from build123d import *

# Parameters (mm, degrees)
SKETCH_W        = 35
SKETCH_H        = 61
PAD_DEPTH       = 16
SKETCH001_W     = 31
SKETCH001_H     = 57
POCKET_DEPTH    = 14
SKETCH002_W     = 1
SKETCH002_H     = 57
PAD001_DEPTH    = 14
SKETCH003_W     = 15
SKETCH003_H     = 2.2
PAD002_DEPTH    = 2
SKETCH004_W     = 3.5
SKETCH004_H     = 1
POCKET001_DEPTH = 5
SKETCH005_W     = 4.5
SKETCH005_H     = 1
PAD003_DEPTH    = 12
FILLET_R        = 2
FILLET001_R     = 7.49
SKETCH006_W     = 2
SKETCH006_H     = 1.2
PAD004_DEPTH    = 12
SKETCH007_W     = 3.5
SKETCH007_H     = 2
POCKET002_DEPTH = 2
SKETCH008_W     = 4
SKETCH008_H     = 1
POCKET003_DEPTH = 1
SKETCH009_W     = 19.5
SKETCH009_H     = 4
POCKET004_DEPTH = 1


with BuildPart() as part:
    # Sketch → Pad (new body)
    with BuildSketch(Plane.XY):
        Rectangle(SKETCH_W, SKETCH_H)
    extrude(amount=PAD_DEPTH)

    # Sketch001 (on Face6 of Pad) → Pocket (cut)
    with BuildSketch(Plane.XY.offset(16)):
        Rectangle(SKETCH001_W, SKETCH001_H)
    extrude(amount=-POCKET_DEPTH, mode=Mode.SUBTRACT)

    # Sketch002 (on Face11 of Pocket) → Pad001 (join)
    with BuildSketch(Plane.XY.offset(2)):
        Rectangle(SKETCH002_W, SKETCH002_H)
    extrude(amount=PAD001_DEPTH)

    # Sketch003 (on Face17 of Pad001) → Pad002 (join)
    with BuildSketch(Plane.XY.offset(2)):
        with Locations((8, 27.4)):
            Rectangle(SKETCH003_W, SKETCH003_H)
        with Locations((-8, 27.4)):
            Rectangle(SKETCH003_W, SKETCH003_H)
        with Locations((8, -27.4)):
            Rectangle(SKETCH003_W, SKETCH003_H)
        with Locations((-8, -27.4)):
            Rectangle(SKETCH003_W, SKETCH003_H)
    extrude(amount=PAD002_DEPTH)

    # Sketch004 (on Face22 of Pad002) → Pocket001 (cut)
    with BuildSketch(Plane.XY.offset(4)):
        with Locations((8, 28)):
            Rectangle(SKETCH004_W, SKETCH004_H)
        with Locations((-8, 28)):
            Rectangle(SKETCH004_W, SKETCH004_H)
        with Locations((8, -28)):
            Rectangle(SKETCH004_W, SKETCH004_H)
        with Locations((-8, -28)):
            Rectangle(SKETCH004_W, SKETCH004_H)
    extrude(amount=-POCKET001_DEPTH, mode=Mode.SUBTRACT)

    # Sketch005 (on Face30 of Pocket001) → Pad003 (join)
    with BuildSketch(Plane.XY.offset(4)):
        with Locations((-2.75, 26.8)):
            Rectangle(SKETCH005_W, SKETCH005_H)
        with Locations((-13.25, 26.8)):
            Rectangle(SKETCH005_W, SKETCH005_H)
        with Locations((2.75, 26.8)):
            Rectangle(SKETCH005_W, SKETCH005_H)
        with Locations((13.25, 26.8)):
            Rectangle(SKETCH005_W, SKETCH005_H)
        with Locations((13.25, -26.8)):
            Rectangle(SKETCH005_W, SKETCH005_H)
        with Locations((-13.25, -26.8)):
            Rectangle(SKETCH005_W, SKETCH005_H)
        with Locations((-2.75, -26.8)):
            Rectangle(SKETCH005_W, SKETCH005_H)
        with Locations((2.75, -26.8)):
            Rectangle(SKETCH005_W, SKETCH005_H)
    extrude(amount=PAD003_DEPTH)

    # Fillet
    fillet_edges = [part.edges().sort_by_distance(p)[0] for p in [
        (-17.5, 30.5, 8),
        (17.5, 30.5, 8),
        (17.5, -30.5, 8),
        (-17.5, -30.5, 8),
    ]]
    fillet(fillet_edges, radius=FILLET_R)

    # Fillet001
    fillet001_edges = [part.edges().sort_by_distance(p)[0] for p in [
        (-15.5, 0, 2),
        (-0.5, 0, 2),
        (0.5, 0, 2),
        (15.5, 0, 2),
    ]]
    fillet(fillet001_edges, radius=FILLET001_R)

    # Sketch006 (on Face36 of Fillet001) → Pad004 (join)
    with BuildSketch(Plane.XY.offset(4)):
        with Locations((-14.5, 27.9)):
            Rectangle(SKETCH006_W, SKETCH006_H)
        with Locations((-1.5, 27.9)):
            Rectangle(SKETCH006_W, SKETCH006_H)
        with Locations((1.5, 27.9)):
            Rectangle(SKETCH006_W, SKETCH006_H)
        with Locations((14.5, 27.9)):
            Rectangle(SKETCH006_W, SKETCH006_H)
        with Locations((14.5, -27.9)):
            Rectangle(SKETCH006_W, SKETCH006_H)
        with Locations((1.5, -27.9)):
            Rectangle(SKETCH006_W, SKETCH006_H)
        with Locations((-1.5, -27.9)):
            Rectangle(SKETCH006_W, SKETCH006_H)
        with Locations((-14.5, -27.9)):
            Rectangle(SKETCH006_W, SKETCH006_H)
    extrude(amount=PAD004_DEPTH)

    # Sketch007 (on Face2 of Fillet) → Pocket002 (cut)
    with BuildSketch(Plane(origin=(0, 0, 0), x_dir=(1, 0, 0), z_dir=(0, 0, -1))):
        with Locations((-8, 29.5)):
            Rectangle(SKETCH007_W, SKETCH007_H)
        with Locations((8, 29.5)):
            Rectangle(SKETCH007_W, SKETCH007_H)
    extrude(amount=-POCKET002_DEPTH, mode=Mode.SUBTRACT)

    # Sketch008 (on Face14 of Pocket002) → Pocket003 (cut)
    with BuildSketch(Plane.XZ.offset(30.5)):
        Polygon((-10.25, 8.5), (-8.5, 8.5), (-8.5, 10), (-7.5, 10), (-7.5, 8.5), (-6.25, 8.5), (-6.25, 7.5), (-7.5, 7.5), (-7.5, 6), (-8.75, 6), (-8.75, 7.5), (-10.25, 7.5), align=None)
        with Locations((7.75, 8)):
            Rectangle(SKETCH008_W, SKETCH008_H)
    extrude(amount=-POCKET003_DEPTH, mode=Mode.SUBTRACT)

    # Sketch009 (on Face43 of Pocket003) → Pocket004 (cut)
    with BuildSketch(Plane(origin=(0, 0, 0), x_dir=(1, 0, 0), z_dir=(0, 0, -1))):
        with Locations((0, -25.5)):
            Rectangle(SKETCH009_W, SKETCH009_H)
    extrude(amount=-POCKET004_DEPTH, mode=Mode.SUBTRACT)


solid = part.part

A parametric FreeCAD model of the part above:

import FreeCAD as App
import Part
import Sketcher
Q = App.Units.Quantity


def edges_at(feature, points):
    """Names of the edges that pass closest to the given points."""
    edges = feature.Shape.Edges
    near = lambda p: min(range(len(edges)), key=lambda i: edges[i].distToShape(Part.Vertex(*p))[0])
    return sorted({f"Edge{near(p) + 1}" for p in points})

doc = App.newDocument("Part")
body = doc.addObject("PartDesign::Body", "Body")

# Sketch on XY plane
sketch1 = body.newObject("Sketcher::SketchObject", "Sketch")
sketch1.AttachmentSupport = (doc.getObject("XY_Plane"), [""])
sketch1.MapMode = "FlatFace"
sketch1.addGeometry(Part.LineSegment(App.Vector(-18, 30, 0), App.Vector(-18, -30, 0)), False)
sketch1.addGeometry(Part.LineSegment(App.Vector(-18, -30, 0), App.Vector(18, -30, 0)), False)
sketch1.addGeometry(Part.LineSegment(App.Vector(18, -30, 0), App.Vector(18, 30, 0)), False)
sketch1.addGeometry(Part.LineSegment(App.Vector(18, 30, 0), App.Vector(-18, 30, 0)), False)
sketch1.addConstraint(Sketcher.Constraint("Coincident", 0, 2, 1, 1))
sketch1.addConstraint(Sketcher.Constraint("Coincident", 1, 2, 2, 1))
sketch1.addConstraint(Sketcher.Constraint("Coincident", 2, 2, 3, 1))
sketch1.addConstraint(Sketcher.Constraint("Coincident", 3, 2, 0, 1))
sketch1.addConstraint(Sketcher.Constraint("Vertical", 0))
sketch1.addConstraint(Sketcher.Constraint("Horizontal", 1))
sketch1.addConstraint(Sketcher.Constraint("Vertical", 2))
sketch1.addConstraint(Sketcher.Constraint("Horizontal", 3))
sketch1.addConstraint(Sketcher.Constraint("Symmetric", 0, 2, 2, 2, -1, 1))
sketch1.addConstraint(Sketcher.Constraint("DistanceX", 1, 1, 1, 2, Q("35 mm")))
sketch1.addConstraint(Sketcher.Constraint("DistanceY", 0, 2, 0, 1, Q("61 mm")))
pad1 = body.newObject("PartDesign::Pad", "Pad")
pad1.Profile = sketch1
pad1.Length = 16

# Sketch on XY plane
sketch2 = body.newObject("Sketcher::SketchObject", "Sketch001")
sketch2.AttachmentSupport = (doc.getObject("XY_Plane"), [""])
sketch2.MapMode = "FlatFace"
sketch2.AttachmentOffset = App.Placement(App.Vector(0, 0, 16), App.Rotation())
sketch2.addGeometry(Part.LineSegment(App.Vector(-16, 28, 0), App.Vector(-16, -28, 0)), False)
sketch2.addGeometry(Part.LineSegment(App.Vector(-16, -28, 0), App.Vector(16, -28, 0)), False)
sketch2.addGeometry(Part.LineSegment(App.Vector(16, -28, 0), App.Vector(16, 28, 0)), False)
sketch2.addGeometry(Part.LineSegment(App.Vector(16, 28, 0), App.Vector(-16, 28, 0)), False)
sketch2.addConstraint(Sketcher.Constraint("Coincident", 0, 2, 1, 1))
sketch2.addConstraint(Sketcher.Constraint("Coincident", 1, 2, 2, 1))
sketch2.addConstraint(Sketcher.Constraint("Coincident", 2, 2, 3, 1))
sketch2.addConstraint(Sketcher.Constraint("Coincident", 3, 2, 0, 1))
sketch2.addConstraint(Sketcher.Constraint("Vertical", 0))
sketch2.addConstraint(Sketcher.Constraint("Horizontal", 1))
sketch2.addConstraint(Sketcher.Constraint("Vertical", 2))
sketch2.addConstraint(Sketcher.Constraint("Horizontal", 3))
sketch2.addConstraint(Sketcher.Constraint("Symmetric", 0, 2, 2, 2, -1, 1))
sketch2.addConstraint(Sketcher.Constraint("DistanceX", 1, 1, 1, 2, Q("31 mm")))
sketch2.addConstraint(Sketcher.Constraint("DistanceY", 0, 2, 0, 1, Q("57 mm")))
pocket1 = body.newObject("PartDesign::Pocket", "Pocket")
pocket1.Profile = sketch2
pocket1.Length = 14

# Sketch on XY plane
sketch3 = body.newObject("Sketcher::SketchObject", "Sketch002")
sketch3.AttachmentSupport = (doc.getObject("XY_Plane"), [""])
sketch3.MapMode = "FlatFace"
sketch3.AttachmentOffset = App.Placement(App.Vector(0, 0, 2), App.Rotation())
sketch3.addGeometry(Part.LineSegment(App.Vector(-0.5, 28.5, 0), App.Vector(-0.5, -28.5, 0)), False)
sketch3.addGeometry(Part.LineSegment(App.Vector(-0.5, -28.5, 0), App.Vector(0.5, -28.5, 0)), False)
sketch3.addGeometry(Part.LineSegment(App.Vector(0.5, -28.5, 0), App.Vector(0.5, 28.5, 0)), False)
sketch3.addGeometry(Part.LineSegment(App.Vector(0.5, 28.5, 0), App.Vector(-0.5, 28.5, 0)), False)
sketch3.addConstraint(Sketcher.Constraint("Coincident", 0, 2, 1, 1))
sketch3.addConstraint(Sketcher.Constraint("Coincident", 1, 2, 2, 1))
sketch3.addConstraint(Sketcher.Constraint("Coincident", 2, 2, 3, 1))
sketch3.addConstraint(Sketcher.Constraint("Coincident", 3, 2, 0, 1))
sketch3.addConstraint(Sketcher.Constraint("Vertical", 0))
sketch3.addConstraint(Sketcher.Constraint("Horizontal", 1))
sketch3.addConstraint(Sketcher.Constraint("Vertical", 2))
sketch3.addConstraint(Sketcher.Constraint("Horizontal", 3))
sketch3.addConstraint(Sketcher.Constraint("Symmetric", 0, 2, 2, 2, -1, 1))
sketch3.addConstraint(Sketcher.Constraint("DistanceX", 1, 1, 1, 2, Q("1 mm")))
sketch3.addConstraint(Sketcher.Constraint("DistanceY", 0, 2, 0, 1, Q("57 mm")))
pad2 = body.newObject("PartDesign::Pad", "Pad001")
pad2.Profile = sketch3
pad2.Length = 14

# Sketch on XY plane
sketch4 = body.newObject("Sketcher::SketchObject", "Sketch003")
sketch4.AttachmentSupport = (doc.getObject("XY_Plane"), [""])
sketch4.MapMode = "FlatFace"
sketch4.AttachmentOffset = App.Placement(App.Vector(0, 0, 2), App.Rotation())
sketch4.addGeometry(Part.LineSegment(App.Vector(0.5, 28.5, 0), App.Vector(0.5, 26.3, 0)), False)
sketch4.addGeometry(Part.LineSegment(App.Vector(0.5, 26.3, 0), App.Vector(15.5, 26.3, 0)), False)
sketch4.addGeometry(Part.LineSegment(App.Vector(15.5, 26.3, 0), App.Vector(15.5, 28.5, 0)), False)
sketch4.addGeometry(Part.LineSegment(App.Vector(15.5, 28.5, 0), App.Vector(0.5, 28.5, 0)), False)
sketch4.addGeometry(Part.LineSegment(App.Vector(-15.5, 28.5, 0), App.Vector(-15.5, 26.3, 0)), False)
sketch4.addGeometry(Part.LineSegment(App.Vector(-15.5, 26.3, 0), App.Vector(-0.5, 26.3, 0)), False)
sketch4.addGeometry(Part.LineSegment(App.Vector(-0.5, 26.3, 0), App.Vector(-0.5, 28.5, 0)), False)
sketch4.addGeometry(Part.LineSegment(App.Vector(-0.5, 28.5, 0), App.Vector(-15.5, 28.5, 0)), False)
sketch4.addGeometry(Part.LineSegment(App.Vector(0.5, -26.3, 0), App.Vector(0.5, -28.5, 0)), False)
sketch4.addGeometry(Part.LineSegment(App.Vector(0.5, -28.5, 0), App.Vector(15.5, -28.5, 0)), False)
sketch4.addGeometry(Part.LineSegment(App.Vector(15.5, -28.5, 0), App.Vector(15.5, -26.3, 0)), False)
sketch4.addGeometry(Part.LineSegment(App.Vector(15.5, -26.3, 0), App.Vector(0.5, -26.3, 0)), False)
sketch4.addGeometry(Part.LineSegment(App.Vector(-15.5, -26.3, 0), App.Vector(-15.5, -28.5, 0)), False)
sketch4.addGeometry(Part.LineSegment(App.Vector(-15.5, -28.5, 0), App.Vector(-0.5, -28.5, 0)), False)
sketch4.addGeometry(Part.LineSegment(App.Vector(-0.5, -28.5, 0), App.Vector(-0.5, -26.3, 0)), False)
sketch4.addGeometry(Part.LineSegment(App.Vector(-0.5, -26.3, 0), App.Vector(-15.5, -26.3, 0)), False)
sketch4.addConstraint(Sketcher.Constraint("Coincident", 0, 2, 1, 1))
sketch4.addConstraint(Sketcher.Constraint("Coincident", 1, 2, 2, 1))
sketch4.addConstraint(Sketcher.Constraint("Coincident", 2, 2, 3, 1))
sketch4.addConstraint(Sketcher.Constraint("Coincident", 3, 2, 0, 1))
sketch4.addConstraint(Sketcher.Constraint("Coincident", 4, 2, 5, 1))
sketch4.addConstraint(Sketcher.Constraint("Coincident", 5, 2, 6, 1))
sketch4.addConstraint(Sketcher.Constraint("Coincident", 6, 2, 7, 1))
sketch4.addConstraint(Sketcher.Constraint("Coincident", 7, 2, 4, 1))
sketch4.addConstraint(Sketcher.Constraint("Coincident", 8, 2, 9, 1))
sketch4.addConstraint(Sketcher.Constraint("Coincident", 9, 2, 10, 1))
sketch4.addConstraint(Sketcher.Constraint("Coincident", 10, 2, 11, 1))
sketch4.addConstraint(Sketcher.Constraint("Coincident", 11, 2, 8, 1))
sketch4.addConstraint(Sketcher.Constraint("Coincident", 12, 2, 13, 1))
sketch4.addConstraint(Sketcher.Constraint("Coincident", 13, 2, 14, 1))
sketch4.addConstraint(Sketcher.Constraint("Coincident", 14, 2, 15, 1))
sketch4.addConstraint(Sketcher.Constraint("Coincident", 15, 2, 12, 1))
sketch4.addConstraint(Sketcher.Constraint("Vertical", 0))
sketch4.addConstraint(Sketcher.Constraint("Horizontal", 1))
sketch4.addConstraint(Sketcher.Constraint("Vertical", 2))
sketch4.addConstraint(Sketcher.Constraint("Horizontal", 3))
sketch4.addConstraint(Sketcher.Constraint("Vertical", 4))
sketch4.addConstraint(Sketcher.Constraint("Horizontal", 5))
sketch4.addConstraint(Sketcher.Constraint("Vertical", 6))
sketch4.addConstraint(Sketcher.Constraint("Horizontal", 7))
sketch4.addConstraint(Sketcher.Constraint("Vertical", 8))
sketch4.addConstraint(Sketcher.Constraint("Horizontal", 9))
sketch4.addConstraint(Sketcher.Constraint("Vertical", 10))
sketch4.addConstraint(Sketcher.Constraint("Horizontal", 11))
sketch4.addConstraint(Sketcher.Constraint("Vertical", 12))
sketch4.addConstraint(Sketcher.Constraint("Horizontal", 13))
sketch4.addConstraint(Sketcher.Constraint("Vertical", 14))
sketch4.addConstraint(Sketcher.Constraint("Horizontal", 15))
sketch4.addConstraint(Sketcher.Constraint("Symmetric", 6, 2, 8, 2, -1, 1))
sketch4.addConstraint(Sketcher.Constraint("Symmetric", 4, 2, 10, 2, -1, 1))
sketch4.addConstraint(Sketcher.Constraint("Symmetric", 2, 2, 12, 2, -1, 1))
sketch4.addConstraint(Sketcher.Constraint("Symmetric", 0, 2, 14, 2, -1, 1))
sketch4.addConstraint(Sketcher.Constraint("Symmetric", 1, 2, 4, 2, -2))
sketch4.addConstraint(Sketcher.Constraint("Symmetric", 3, 2, 6, 2, -2))
sketch4.addConstraint(Sketcher.Constraint("DistanceX", 1, 1, 1, 2, Q("15 mm")))
sketch4.addConstraint(Sketcher.Constraint("DistanceY", 0, 2, 0, 1, Q("2.2 mm")))
sketch4.addConstraint(Sketcher.Constraint("DistanceX", 4, 2, 0, 2, Q("16 mm")))
sketch4.addConstraint(Sketcher.Constraint("DistanceY", 8, 2, 3, 2, Q("57 mm")))
pad3 = body.newObject("PartDesign::Pad", "Pad002")
pad3.Profile = sketch4
pad3.Length = 2

# Sketch on XY plane
sketch5 = body.newObject("Sketcher::SketchObject", "Sketch004")
sketch5.AttachmentSupport = (doc.getObject("XY_Plane"), [""])
sketch5.MapMode = "FlatFace"
sketch5.AttachmentOffset = App.Placement(App.Vector(0, 0, 4), App.Rotation())
sketch5.addGeometry(Part.LineSegment(App.Vector(6.2, 28.5, 0), App.Vector(6.2, 27.5, 0)), False)
sketch5.addGeometry(Part.LineSegment(App.Vector(6.2, 27.5, 0), App.Vector(9.8, 27.5, 0)), False)
sketch5.addGeometry(Part.LineSegment(App.Vector(9.8, 27.5, 0), App.Vector(9.8, 28.5, 0)), False)
sketch5.addGeometry(Part.LineSegment(App.Vector(9.8, 28.5, 0), App.Vector(6.2, 28.5, 0)), False)
sketch5.addGeometry(Part.LineSegment(App.Vector(-9.8, 28.5, 0), App.Vector(-9.8, 27.5, 0)), False)
sketch5.addGeometry(Part.LineSegment(App.Vector(-9.8, 27.5, 0), App.Vector(-6.2, 27.5, 0)), False)
sketch5.addGeometry(Part.LineSegment(App.Vector(-6.2, 27.5, 0), App.Vector(-6.2, 28.5, 0)), False)
sketch5.addGeometry(Part.LineSegment(App.Vector(-6.2, 28.5, 0), App.Vector(-9.8, 28.5, 0)), False)
sketch5.addGeometry(Part.LineSegment(App.Vector(6.2, -27.5, 0), App.Vector(6.2, -28.5, 0)), False)
sketch5.addGeometry(Part.LineSegment(App.Vector(6.2, -28.5, 0), App.Vector(9.8, -28.5, 0)), False)
sketch5.addGeometry(Part.LineSegment(App.Vector(9.8, -28.5, 0), App.Vector(9.8, -27.5, 0)), False)
sketch5.addGeometry(Part.LineSegment(App.Vector(9.8, -27.5, 0), App.Vector(6.2, -27.5, 0)), False)
sketch5.addGeometry(Part.LineSegment(App.Vector(-9.8, -27.5, 0), App.Vector(-9.8, -28.5, 0)), False)
sketch5.addGeometry(Part.LineSegment(App.Vector(-9.8, -28.5, 0), App.Vector(-6.2, -28.5, 0)), False)
sketch5.addGeometry(Part.LineSegment(App.Vector(-6.2, -28.5, 0), App.Vector(-6.2, -27.5, 0)), False)
sketch5.addGeometry(Part.LineSegment(App.Vector(-6.2, -27.5, 0), App.Vector(-9.8, -27.5, 0)), False)
sketch5.addConstraint(Sketcher.Constraint("Coincident", 0, 2, 1, 1))
sketch5.addConstraint(Sketcher.Constraint("Coincident", 1, 2, 2, 1))
sketch5.addConstraint(Sketcher.Constraint("Coincident", 2, 2, 3, 1))
sketch5.addConstraint(Sketcher.Constraint("Coincident", 3, 2, 0, 1))
sketch5.addConstraint(Sketcher.Constraint("Coincident", 4, 2, 5, 1))
sketch5.addConstraint(Sketcher.Constraint("Coincident", 5, 2, 6, 1))
sketch5.addConstraint(Sketcher.Constraint("Coincident", 6, 2, 7, 1))
sketch5.addConstraint(Sketcher.Constraint("Coincident", 7, 2, 4, 1))
sketch5.addConstraint(Sketcher.Constraint("Coincident", 8, 2, 9, 1))
sketch5.addConstraint(Sketcher.Constraint("Coincident", 9, 2, 10, 1))
sketch5.addConstraint(Sketcher.Constraint("Coincident", 10, 2, 11, 1))
sketch5.addConstraint(Sketcher.Constraint("Coincident", 11, 2, 8, 1))
sketch5.addConstraint(Sketcher.Constraint("Coincident", 12, 2, 13, 1))
sketch5.addConstraint(Sketcher.Constraint("Coincident", 13, 2, 14, 1))
sketch5.addConstraint(Sketcher.Constraint("Coincident", 14, 2, 15, 1))
sketch5.addConstraint(Sketcher.Constraint("Coincident", 15, 2, 12, 1))
sketch5.addConstraint(Sketcher.Constraint("Vertical", 0))
sketch5.addConstraint(Sketcher.Constraint("Horizontal", 1))
sketch5.addConstraint(Sketcher.Constraint("Vertical", 2))
sketch5.addConstraint(Sketcher.Constraint("Horizontal", 3))
sketch5.addConstraint(Sketcher.Constraint("Vertical", 4))
sketch5.addConstraint(Sketcher.Constraint("Horizontal", 5))
sketch5.addConstraint(Sketcher.Constraint("Vertical", 6))
sketch5.addConstraint(Sketcher.Constraint("Horizontal", 7))
sketch5.addConstraint(Sketcher.Constraint("Vertical", 8))
sketch5.addConstraint(Sketcher.Constraint("Horizontal", 9))
sketch5.addConstraint(Sketcher.Constraint("Vertical", 10))
sketch5.addConstraint(Sketcher.Constraint("Horizontal", 11))
sketch5.addConstraint(Sketcher.Constraint("Vertical", 12))
sketch5.addConstraint(Sketcher.Constraint("Horizontal", 13))
sketch5.addConstraint(Sketcher.Constraint("Vertical", 14))
sketch5.addConstraint(Sketcher.Constraint("Horizontal", 15))
sketch5.addConstraint(Sketcher.Constraint("Symmetric", 6, 2, 8, 2, -1, 1))
sketch5.addConstraint(Sketcher.Constraint("Symmetric", 4, 2, 10, 2, -1, 1))
sketch5.addConstraint(Sketcher.Constraint("Symmetric", 2, 2, 12, 2, -1, 1))
sketch5.addConstraint(Sketcher.Constraint("Symmetric", 0, 2, 14, 2, -1, 1))
sketch5.addConstraint(Sketcher.Constraint("Symmetric", 1, 2, 4, 2, -2))
sketch5.addConstraint(Sketcher.Constraint("Symmetric", 3, 2, 6, 2, -2))
sketch5.addConstraint(Sketcher.Constraint("DistanceY", 0, 2, 0, 1, Q("1 mm")))
sketch5.addConstraint(Sketcher.Constraint("DistanceX", 1, 1, 1, 2, Q("3.5 mm")))
sketch5.addConstraint(Sketcher.Constraint("DistanceX", 4, 2, 0, 2, Q("16 mm")))
sketch5.addConstraint(Sketcher.Constraint("DistanceY", 8, 2, 0, 2, Q("56 mm")))
pocket2 = body.newObject("PartDesign::Pocket", "Pocket001")
pocket2.Profile = sketch5
pocket2.Length = 5

# Sketch on XY plane
sketch6 = body.newObject("Sketcher::SketchObject", "Sketch005")
sketch6.AttachmentSupport = (doc.getObject("XY_Plane"), [""])
sketch6.MapMode = "FlatFace"
sketch6.AttachmentOffset = App.Placement(App.Vector(0, 0, 4), App.Rotation())
sketch6.addGeometry(Part.LineSegment(App.Vector(-5, 27.3, 0), App.Vector(-5, 26.3, 0)), False)
sketch6.addGeometry(Part.LineSegment(App.Vector(-5, 26.3, 0), App.Vector(-0.5, 26.3, 0)), False)
sketch6.addGeometry(Part.LineSegment(App.Vector(-0.5, 26.3, 0), App.Vector(-0.5, 27.3, 0)), False)
sketch6.addGeometry(Part.LineSegment(App.Vector(-0.5, 27.3, 0), App.Vector(-5, 27.3, 0)), False)
sketch6.addGeometry(Part.LineSegment(App.Vector(-15.5, 27.3, 0), App.Vector(-15.5, 26.3, 0)), False)
sketch6.addGeometry(Part.LineSegment(App.Vector(-15.5, 26.3, 0), App.Vector(-11, 26.3, 0)), False)
sketch6.addGeometry(Part.LineSegment(App.Vector(-11, 26.3, 0), App.Vector(-11, 27.3, 0)), False)
sketch6.addGeometry(Part.LineSegment(App.Vector(-11, 27.3, 0), App.Vector(-15.5, 27.3, 0)), False)
sketch6.addGeometry(Part.LineSegment(App.Vector(0.5, 27.3, 0), App.Vector(0.5, 26.3, 0)), False)
sketch6.addGeometry(Part.LineSegment(App.Vector(0.5, 26.3, 0), App.Vector(5, 26.3, 0)), False)
sketch6.addGeometry(Part.LineSegment(App.Vector(5, 26.3, 0), App.Vector(5, 27.3, 0)), False)
sketch6.addGeometry(Part.LineSegment(App.Vector(5, 27.3, 0), App.Vector(0.5, 27.3, 0)), False)
sketch6.addGeometry(Part.LineSegment(App.Vector(11, 27.3, 0), App.Vector(11, 26.3, 0)), False)
sketch6.addGeometry(Part.LineSegment(App.Vector(11, 26.3, 0), App.Vector(15.5, 26.3, 0)), False)
sketch6.addGeometry(Part.LineSegment(App.Vector(15.5, 26.3, 0), App.Vector(15.5, 27.3, 0)), False)
sketch6.addGeometry(Part.LineSegment(App.Vector(15.5, 27.3, 0), App.Vector(11, 27.3, 0)), False)
sketch6.addGeometry(Part.LineSegment(App.Vector(11, -26.3, 0), App.Vector(11, -27.3, 0)), False)
sketch6.addGeometry(Part.LineSegment(App.Vector(11, -27.3, 0), App.Vector(15.5, -27.3, 0)), False)
sketch6.addGeometry(Part.LineSegment(App.Vector(15.5, -27.3, 0), App.Vector(15.5, -26.3, 0)), False)
sketch6.addGeometry(Part.LineSegment(App.Vector(15.5, -26.3, 0), App.Vector(11, -26.3, 0)), False)
sketch6.addGeometry(Part.LineSegment(App.Vector(-15.5, -26.3, 0), App.Vector(-15.5, -27.3, 0)), False)
sketch6.addGeometry(Part.LineSegment(App.Vector(-15.5, -27.3, 0), App.Vector(-11, -27.3, 0)), False)
sketch6.addGeometry(Part.LineSegment(App.Vector(-11, -27.3, 0), App.Vector(-11, -26.3, 0)), False)
sketch6.addGeometry(Part.LineSegment(App.Vector(-11, -26.3, 0), App.Vector(-15.5, -26.3, 0)), False)
sketch6.addGeometry(Part.LineSegment(App.Vector(-5, -26.3, 0), App.Vector(-5, -27.3, 0)), False)
sketch6.addGeometry(Part.LineSegment(App.Vector(-5, -27.3, 0), App.Vector(-0.5, -27.3, 0)), False)
sketch6.addGeometry(Part.LineSegment(App.Vector(-0.5, -27.3, 0), App.Vector(-0.5, -26.3, 0)), False)
sketch6.addGeometry(Part.LineSegment(App.Vector(-0.5, -26.3, 0), App.Vector(-5, -26.3, 0)), False)
sketch6.addGeometry(Part.LineSegment(App.Vector(0.5, -26.3, 0), App.Vector(0.5, -27.3, 0)), False)
sketch6.addGeometry(Part.LineSegment(App.Vector(0.5, -27.3, 0), App.Vector(5, -27.3, 0)), False)
sketch6.addGeometry(Part.LineSegment(App.Vector(5, -27.3, 0), App.Vector(5, -26.3, 0)), False)
sketch6.addGeometry(Part.LineSegment(App.Vector(5, -26.3, 0), App.Vector(0.5, -26.3, 0)), False)
sketch6.addConstraint(Sketcher.Constraint("Coincident", 0, 2, 1, 1))
sketch6.addConstraint(Sketcher.Constraint("Coincident", 1, 2, 2, 1))
sketch6.addConstraint(Sketcher.Constraint("Coincident", 2, 2, 3, 1))
sketch6.addConstraint(Sketcher.Constraint("Coincident", 3, 2, 0, 1))
sketch6.addConstraint(Sketcher.Constraint("Coincident", 4, 2, 5, 1))
sketch6.addConstraint(Sketcher.Constraint("Coincident", 5, 2, 6, 1))
sketch6.addConstraint(Sketcher.Constraint("Coincident", 6, 2, 7, 1))
sketch6.addConstraint(Sketcher.Constraint("Coincident", 7, 2, 4, 1))
sketch6.addConstraint(Sketcher.Constraint("Coincident", 8, 2, 9, 1))
sketch6.addConstraint(Sketcher.Constraint("Coincident", 9, 2, 10, 1))
sketch6.addConstraint(Sketcher.Constraint("Coincident", 10, 2, 11, 1))
sketch6.addConstraint(Sketcher.Constraint("Coincident", 11, 2, 8, 1))
sketch6.addConstraint(Sketcher.Constraint("Coincident", 12, 2, 13, 1))
sketch6.addConstraint(Sketcher.Constraint("Coincident", 13, 2, 14, 1))
sketch6.addConstraint(Sketcher.Constraint("Coincident", 14, 2, 15, 1))
sketch6.addConstraint(Sketcher.Constraint("Coincident", 15, 2, 12, 1))
sketch6.addConstraint(Sketcher.Constraint("Coincident", 16, 2, 17, 1))
sketch6.addConstraint(Sketcher.Constraint("Coincident", 17, 2, 18, 1))
sketch6.addConstraint(Sketcher.Constraint("Coincident", 18, 2, 19, 1))
sketch6.addConstraint(Sketcher.Constraint("Coincident", 19, 2, 16, 1))
sketch6.addConstraint(Sketcher.Constraint("Coincident", 20, 2, 21, 1))
sketch6.addConstraint(Sketcher.Constraint("Coincident", 21, 2, 22, 1))
sketch6.addConstraint(Sketcher.Constraint("Coincident", 22, 2, 23, 1))
sketch6.addConstraint(Sketcher.Constraint("Coincident", 23, 2, 20, 1))
sketch6.addConstraint(Sketcher.Constraint("Coincident", 24, 2, 25, 1))
sketch6.addConstraint(Sketcher.Constraint("Coincident", 25, 2, 26, 1))
sketch6.addConstraint(Sketcher.Constraint("Coincident", 26, 2, 27, 1))
sketch6.addConstraint(Sketcher.Constraint("Coincident", 27, 2, 24, 1))
sketch6.addConstraint(Sketcher.Constraint("Coincident", 28, 2, 29, 1))
sketch6.addConstraint(Sketcher.Constraint("Coincident", 29, 2, 30, 1))
sketch6.addConstraint(Sketcher.Constraint("Coincident", 30, 2, 31, 1))
sketch6.addConstraint(Sketcher.Constraint("Coincident", 31, 2, 28, 1))
sketch6.addConstraint(Sketcher.Constraint("Vertical", 0))
sketch6.addConstraint(Sketcher.Constraint("Horizontal", 1))
sketch6.addConstraint(Sketcher.Constraint("Vertical", 2))
sketch6.addConstraint(Sketcher.Constraint("Horizontal", 3))
sketch6.addConstraint(Sketcher.Constraint("Vertical", 4))
sketch6.addConstraint(Sketcher.Constraint("Horizontal", 5))
sketch6.addConstraint(Sketcher.Constraint("Vertical", 6))
sketch6.addConstraint(Sketcher.Constraint("Horizontal", 7))
sketch6.addConstraint(Sketcher.Constraint("Vertical", 8))
sketch6.addConstraint(Sketcher.Constraint("Horizontal", 9))
sketch6.addConstraint(Sketcher.Constraint("Vertical", 10))
sketch6.addConstraint(Sketcher.Constraint("Horizontal", 11))
sketch6.addConstraint(Sketcher.Constraint("Vertical", 12))
sketch6.addConstraint(Sketcher.Constraint("Horizontal", 13))
sketch6.addConstraint(Sketcher.Constraint("Vertical", 14))
sketch6.addConstraint(Sketcher.Constraint("Horizontal", 15))
sketch6.addConstraint(Sketcher.Constraint("Vertical", 16))
sketch6.addConstraint(Sketcher.Constraint("Horizontal", 17))
sketch6.addConstraint(Sketcher.Constraint("Vertical", 18))
sketch6.addConstraint(Sketcher.Constraint("Horizontal", 19))
sketch6.addConstraint(Sketcher.Constraint("Vertical", 20))
sketch6.addConstraint(Sketcher.Constraint("Horizontal", 21))
sketch6.addConstraint(Sketcher.Constraint("Vertical", 22))
sketch6.addConstraint(Sketcher.Constraint("Horizontal", 23))
sketch6.addConstraint(Sketcher.Constraint("Vertical", 24))
sketch6.addConstraint(Sketcher.Constraint("Horizontal", 25))
sketch6.addConstraint(Sketcher.Constraint("Vertical", 26))
sketch6.addConstraint(Sketcher.Constraint("Horizontal", 27))
sketch6.addConstraint(Sketcher.Constraint("Vertical", 28))
sketch6.addConstraint(Sketcher.Constraint("Horizontal", 29))
sketch6.addConstraint(Sketcher.Constraint("Vertical", 30))
sketch6.addConstraint(Sketcher.Constraint("Horizontal", 31))
sketch6.addConstraint(Sketcher.Constraint("Symmetric", 6, 2, 16, 2, -1, 1))
sketch6.addConstraint(Sketcher.Constraint("Symmetric", 4, 2, 18, 2, -1, 1))
sketch6.addConstraint(Sketcher.Constraint("Symmetric", 14, 2, 20, 2, -1, 1))
sketch6.addConstraint(Sketcher.Constraint("Symmetric", 12, 2, 22, 2, -1, 1))
sketch6.addConstraint(Sketcher.Constraint("Symmetric", 10, 2, 24, 2, -1, 1))
sketch6.addConstraint(Sketcher.Constraint("Symmetric", 8, 2, 26, 2, -1, 1))
sketch6.addConstraint(Sketcher.Constraint("Symmetric", 2, 2, 28, 2, -1, 1))
sketch6.addConstraint(Sketcher.Constraint("Symmetric", 0, 2, 30, 2, -1, 1))
sketch6.addConstraint(Sketcher.Constraint("Symmetric", 1, 2, 8, 2, -2))
sketch6.addConstraint(Sketcher.Constraint("Symmetric", 3, 2, 10, 2, -2))
sketch6.addConstraint(Sketcher.Constraint("Symmetric", 5, 2, 12, 2, -2))
sketch6.addConstraint(Sketcher.Constraint("Symmetric", 7, 2, 14, 2, -2))
sketch6.addConstraint(Sketcher.Constraint("Horizontal", 1, 2, 4, 2))
sketch6.addConstraint(Sketcher.Constraint("Horizontal", 3, 2, 6, 2))
sketch6.addConstraint(Sketcher.Constraint("Equal", 3, 5))
sketch6.addConstraint(Sketcher.Constraint("DistanceY", 0, 2, 0, 1, Q("1 mm")))
sketch6.addConstraint(Sketcher.Constraint("DistanceX", 1, 1, 1, 2, Q("4.5 mm")))
sketch6.addConstraint(Sketcher.Constraint("DistanceX", 0, 2, -1, 1, Q("5 mm")))
sketch6.addConstraint(Sketcher.Constraint("DistanceX", 5, 2, -1, 1, Q("11 mm")))
sketch6.addConstraint(Sketcher.Constraint("DistanceY", -1, 1, 0, 2, Q("26.3 mm")))
pad4 = body.newObject("PartDesign::Pad", "Pad003")
pad4.Profile = sketch6
pad4.Length = 12
doc.recompute()

fillet = body.newObject("PartDesign::Fillet", "Fillet")
fillet.Base = (pad4, edges_at(pad4, [
    (-17.5, 30.5, 8),
    (17.5, 30.5, 8),
    (17.5, -30.5, 8),
    (-17.5, -30.5, 8),
]))
fillet.Radius = 2
doc.recompute()

fillet2 = body.newObject("PartDesign::Fillet", "Fillet001")
fillet2.Base = (fillet, edges_at(fillet, [
    (-15.5, 0, 2),
    (-0.5, 0, 2),
    (0.5, 0, 2),
    (15.5, 0, 2),
]))
fillet2.Radius = 7.49

# Sketch on XY plane
sketch7 = body.newObject("Sketcher::SketchObject", "Sketch006")
sketch7.AttachmentSupport = (doc.getObject("XY_Plane"), [""])
sketch7.MapMode = "FlatFace"
sketch7.AttachmentOffset = App.Placement(App.Vector(0, 0, 4), App.Rotation())
sketch7.addGeometry(Part.LineSegment(App.Vector(-15.5, 28.5, 0), App.Vector(-15.5, 27.3, 0)), False)
sketch7.addGeometry(Part.LineSegment(App.Vector(-15.5, 27.3, 0), App.Vector(-13.5, 27.3, 0)), False)
sketch7.addGeometry(Part.LineSegment(App.Vector(-13.5, 27.3, 0), App.Vector(-13.5, 28.5, 0)), False)
sketch7.addGeometry(Part.LineSegment(App.Vector(-13.5, 28.5, 0), App.Vector(-15.5, 28.5, 0)), False)
sketch7.addGeometry(Part.LineSegment(App.Vector(-2.5, 28.5, 0), App.Vector(-2.5, 27.3, 0)), False)
sketch7.addGeometry(Part.LineSegment(App.Vector(-2.5, 27.3, 0), App.Vector(-0.5, 27.3, 0)), False)
sketch7.addGeometry(Part.LineSegment(App.Vector(-0.5, 27.3, 0), App.Vector(-0.5, 28.5, 0)), False)
sketch7.addGeometry(Part.LineSegment(App.Vector(-0.5, 28.5, 0), App.Vector(-2.5, 28.5, 0)), False)
sketch7.addGeometry(Part.LineSegment(App.Vector(0.5, 28.5, 0), App.Vector(0.5, 27.3, 0)), False)
sketch7.addGeometry(Part.LineSegment(App.Vector(0.5, 27.3, 0), App.Vector(2.5, 27.3, 0)), False)
sketch7.addGeometry(Part.LineSegment(App.Vector(2.5, 27.3, 0), App.Vector(2.5, 28.5, 0)), False)
sketch7.addGeometry(Part.LineSegment(App.Vector(2.5, 28.5, 0), App.Vector(0.5, 28.5, 0)), False)
sketch7.addGeometry(Part.LineSegment(App.Vector(13.5, 28.5, 0), App.Vector(13.5, 27.3, 0)), False)
sketch7.addGeometry(Part.LineSegment(App.Vector(13.5, 27.3, 0), App.Vector(15.5, 27.3, 0)), False)
sketch7.addGeometry(Part.LineSegment(App.Vector(15.5, 27.3, 0), App.Vector(15.5, 28.5, 0)), False)
sketch7.addGeometry(Part.LineSegment(App.Vector(15.5, 28.5, 0), App.Vector(13.5, 28.5, 0)), False)
sketch7.addGeometry(Part.LineSegment(App.Vector(13.5, -27.3, 0), App.Vector(13.5, -28.5, 0)), False)
sketch7.addGeometry(Part.LineSegment(App.Vector(13.5, -28.5, 0), App.Vector(15.5, -28.5, 0)), False)
sketch7.addGeometry(Part.LineSegment(App.Vector(15.5, -28.5, 0), App.Vector(15.5, -27.3, 0)), False)
sketch7.addGeometry(Part.LineSegment(App.Vector(15.5, -27.3, 0), App.Vector(13.5, -27.3, 0)), False)
sketch7.addGeometry(Part.LineSegment(App.Vector(0.5, -27.3, 0), App.Vector(0.5, -28.5, 0)), False)
sketch7.addGeometry(Part.LineSegment(App.Vector(0.5, -28.5, 0), App.Vector(2.5, -28.5, 0)), False)
sketch7.addGeometry(Part.LineSegment(App.Vector(2.5, -28.5, 0), App.Vector(2.5, -27.3, 0)), False)
sketch7.addGeometry(Part.LineSegment(App.Vector(2.5, -27.3, 0), App.Vector(0.5, -27.3, 0)), False)
sketch7.addGeometry(Part.LineSegment(App.Vector(-2.5, -27.3, 0), App.Vector(-2.5, -28.5, 0)), False)
sketch7.addGeometry(Part.LineSegment(App.Vector(-2.5, -28.5, 0), App.Vector(-0.5, -28.5, 0)), False)
sketch7.addGeometry(Part.LineSegment(App.Vector(-0.5, -28.5, 0), App.Vector(-0.5, -27.3, 0)), False)
sketch7.addGeometry(Part.LineSegment(App.Vector(-0.5, -27.3, 0), App.Vector(-2.5, -27.3, 0)), False)
sketch7.addGeometry(Part.LineSegment(App.Vector(-15.5, -27.3, 0), App.Vector(-15.5, -28.5, 0)), False)
sketch7.addGeometry(Part.LineSegment(App.Vector(-15.5, -28.5, 0), App.Vector(-13.5, -28.5, 0)), False)
sketch7.addGeometry(Part.LineSegment(App.Vector(-13.5, -28.5, 0), App.Vector(-13.5, -27.3, 0)), False)
sketch7.addGeometry(Part.LineSegment(App.Vector(-13.5, -27.3, 0), App.Vector(-15.5, -27.3, 0)), False)
sketch7.addConstraint(Sketcher.Constraint("Coincident", 0, 2, 1, 1))
sketch7.addConstraint(Sketcher.Constraint("Coincident", 1, 2, 2, 1))
sketch7.addConstraint(Sketcher.Constraint("Coincident", 2, 2, 3, 1))
sketch7.addConstraint(Sketcher.Constraint("Coincident", 3, 2, 0, 1))
sketch7.addConstraint(Sketcher.Constraint("Coincident", 4, 2, 5, 1))
sketch7.addConstraint(Sketcher.Constraint("Coincident", 5, 2, 6, 1))
sketch7.addConstraint(Sketcher.Constraint("Coincident", 6, 2, 7, 1))
sketch7.addConstraint(Sketcher.Constraint("Coincident", 7, 2, 4, 1))
sketch7.addConstraint(Sketcher.Constraint("Coincident", 8, 2, 9, 1))
sketch7.addConstraint(Sketcher.Constraint("Coincident", 9, 2, 10, 1))
sketch7.addConstraint(Sketcher.Constraint("Coincident", 10, 2, 11, 1))
sketch7.addConstraint(Sketcher.Constraint("Coincident", 11, 2, 8, 1))
sketch7.addConstraint(Sketcher.Constraint("Coincident", 12, 2, 13, 1))
sketch7.addConstraint(Sketcher.Constraint("Coincident", 13, 2, 14, 1))
sketch7.addConstraint(Sketcher.Constraint("Coincident", 14, 2, 15, 1))
sketch7.addConstraint(Sketcher.Constraint("Coincident", 15, 2, 12, 1))
sketch7.addConstraint(Sketcher.Constraint("Coincident", 16, 2, 17, 1))
sketch7.addConstraint(Sketcher.Constraint("Coincident", 17, 2, 18, 1))
sketch7.addConstraint(Sketcher.Constraint("Coincident", 18, 2, 19, 1))
sketch7.addConstraint(Sketcher.Constraint("Coincident", 19, 2, 16, 1))
sketch7.addConstraint(Sketcher.Constraint("Coincident", 20, 2, 21, 1))
sketch7.addConstraint(Sketcher.Constraint("Coincident", 21, 2, 22, 1))
sketch7.addConstraint(Sketcher.Constraint("Coincident", 22, 2, 23, 1))
sketch7.addConstraint(Sketcher.Constraint("Coincident", 23, 2, 20, 1))
sketch7.addConstraint(Sketcher.Constraint("Coincident", 24, 2, 25, 1))
sketch7.addConstraint(Sketcher.Constraint("Coincident", 25, 2, 26, 1))
sketch7.addConstraint(Sketcher.Constraint("Coincident", 26, 2, 27, 1))
sketch7.addConstraint(Sketcher.Constraint("Coincident", 27, 2, 24, 1))
sketch7.addConstraint(Sketcher.Constraint("Coincident", 28, 2, 29, 1))
sketch7.addConstraint(Sketcher.Constraint("Coincident", 29, 2, 30, 1))
sketch7.addConstraint(Sketcher.Constraint("Coincident", 30, 2, 31, 1))
sketch7.addConstraint(Sketcher.Constraint("Coincident", 31, 2, 28, 1))
sketch7.addConstraint(Sketcher.Constraint("Vertical", 0))
sketch7.addConstraint(Sketcher.Constraint("Horizontal", 1))
sketch7.addConstraint(Sketcher.Constraint("Vertical", 2))
sketch7.addConstraint(Sketcher.Constraint("Horizontal", 3))
sketch7.addConstraint(Sketcher.Constraint("Vertical", 4))
sketch7.addConstraint(Sketcher.Constraint("Horizontal", 5))
sketch7.addConstraint(Sketcher.Constraint("Vertical", 6))
sketch7.addConstraint(Sketcher.Constraint("Horizontal", 7))
sketch7.addConstraint(Sketcher.Constraint("Vertical", 8))
sketch7.addConstraint(Sketcher.Constraint("Horizontal", 9))
sketch7.addConstraint(Sketcher.Constraint("Vertical", 10))
sketch7.addConstraint(Sketcher.Constraint("Horizontal", 11))
sketch7.addConstraint(Sketcher.Constraint("Vertical", 12))
sketch7.addConstraint(Sketcher.Constraint("Horizontal", 13))
sketch7.addConstraint(Sketcher.Constraint("Vertical", 14))
sketch7.addConstraint(Sketcher.Constraint("Horizontal", 15))
sketch7.addConstraint(Sketcher.Constraint("Vertical", 16))
sketch7.addConstraint(Sketcher.Constraint("Horizontal", 17))
sketch7.addConstraint(Sketcher.Constraint("Vertical", 18))
sketch7.addConstraint(Sketcher.Constraint("Horizontal", 19))
sketch7.addConstraint(Sketcher.Constraint("Vertical", 20))
sketch7.addConstraint(Sketcher.Constraint("Horizontal", 21))
sketch7.addConstraint(Sketcher.Constraint("Vertical", 22))
sketch7.addConstraint(Sketcher.Constraint("Horizontal", 23))
sketch7.addConstraint(Sketcher.Constraint("Vertical", 24))
sketch7.addConstraint(Sketcher.Constraint("Horizontal", 25))
sketch7.addConstraint(Sketcher.Constraint("Vertical", 26))
sketch7.addConstraint(Sketcher.Constraint("Horizontal", 27))
sketch7.addConstraint(Sketcher.Constraint("Vertical", 28))
sketch7.addConstraint(Sketcher.Constraint("Horizontal", 29))
sketch7.addConstraint(Sketcher.Constraint("Vertical", 30))
sketch7.addConstraint(Sketcher.Constraint("Horizontal", 31))
sketch7.addConstraint(Sketcher.Constraint("Symmetric", 2, 2, 16, 2, -1, 1))
sketch7.addConstraint(Sketcher.Constraint("Symmetric", 0, 2, 18, 2, -1, 1))
sketch7.addConstraint(Sketcher.Constraint("Symmetric", 6, 2, 20, 2, -1, 1))
sketch7.addConstraint(Sketcher.Constraint("Symmetric", 4, 2, 22, 2, -1, 1))
sketch7.addConstraint(Sketcher.Constraint("Symmetric", 10, 2, 24, 2, -1, 1))
sketch7.addConstraint(Sketcher.Constraint("Symmetric", 8, 2, 26, 2, -1, 1))
sketch7.addConstraint(Sketcher.Constraint("Symmetric", 14, 2, 28, 2, -1, 1))
sketch7.addConstraint(Sketcher.Constraint("Symmetric", 12, 2, 30, 2, -1, 1))
sketch7.addConstraint(Sketcher.Constraint("Symmetric", 5, 2, 8, 2, -2))
sketch7.addConstraint(Sketcher.Constraint("Symmetric", 7, 2, 10, 2, -2))
sketch7.addConstraint(Sketcher.Constraint("Symmetric", 1, 2, 12, 2, -2))
sketch7.addConstraint(Sketcher.Constraint("Symmetric", 3, 2, 14, 2, -2))
sketch7.addConstraint(Sketcher.Constraint("Horizontal", 1, 2, 4, 2))
sketch7.addConstraint(Sketcher.Constraint("Horizontal", 3, 2, 6, 2))
sketch7.addConstraint(Sketcher.Constraint("Equal", 3, 5))
sketch7.addConstraint(Sketcher.Constraint("DistanceX", 1, 1, 1, 2, Q("2 mm")))
sketch7.addConstraint(Sketcher.Constraint("DistanceY", 0, 2, 0, 1, Q("1.2 mm")))
sketch7.addConstraint(Sketcher.Constraint("DistanceX", 1, 2, 4, 2, Q("11 mm")))
sketch7.addConstraint(Sketcher.Constraint("DistanceX", 5, 2, 8, 2, Q("1 mm")))
sketch7.addConstraint(Sketcher.Constraint("DistanceY", 16, 2, 15, 2, Q("57 mm")))
pad5 = body.newObject("PartDesign::Pad", "Pad004")
pad5.Profile = sketch7
pad5.Length = 12

# Sketch on XY plane
sketch8 = body.newObject("Sketcher::SketchObject", "Sketch007")
sketch8.AttachmentSupport = (doc.getObject("XY_Plane"), [""])
sketch8.MapMode = "FlatFace"
sketch8.addGeometry(Part.LineSegment(App.Vector(-9.8, -30.5, 0), App.Vector(-9.8, -28.5, 0)), False)
sketch8.addGeometry(Part.LineSegment(App.Vector(-9.8, -28.5, 0), App.Vector(-6.2, -28.5, 0)), False)
sketch8.addGeometry(Part.LineSegment(App.Vector(-6.2, -28.5, 0), App.Vector(-6.2, -30.5, 0)), False)
sketch8.addGeometry(Part.LineSegment(App.Vector(-6.2, -30.5, 0), App.Vector(-9.8, -30.5, 0)), False)
sketch8.addGeometry(Part.LineSegment(App.Vector(6.2, -30.5, 0), App.Vector(6.2, -28.5, 0)), False)
sketch8.addGeometry(Part.LineSegment(App.Vector(6.2, -28.5, 0), App.Vector(9.8, -28.5, 0)), False)
sketch8.addGeometry(Part.LineSegment(App.Vector(9.8, -28.5, 0), App.Vector(9.8, -30.5, 0)), False)
sketch8.addGeometry(Part.LineSegment(App.Vector(9.8, -30.5, 0), App.Vector(6.2, -30.5, 0)), False)
sketch8.addConstraint(Sketcher.Constraint("Coincident", 0, 2, 1, 1))
sketch8.addConstraint(Sketcher.Constraint("Coincident", 1, 2, 2, 1))
sketch8.addConstraint(Sketcher.Constraint("Coincident", 2, 2, 3, 1))
sketch8.addConstraint(Sketcher.Constraint("Coincident", 3, 2, 0, 1))
sketch8.addConstraint(Sketcher.Constraint("Coincident", 4, 2, 5, 1))
sketch8.addConstraint(Sketcher.Constraint("Coincident", 5, 2, 6, 1))
sketch8.addConstraint(Sketcher.Constraint("Coincident", 6, 2, 7, 1))
sketch8.addConstraint(Sketcher.Constraint("Coincident", 7, 2, 4, 1))
sketch8.addConstraint(Sketcher.Constraint("Vertical", 0))
sketch8.addConstraint(Sketcher.Constraint("Horizontal", 1))
sketch8.addConstraint(Sketcher.Constraint("Vertical", 2))
sketch8.addConstraint(Sketcher.Constraint("Horizontal", 3))
sketch8.addConstraint(Sketcher.Constraint("Vertical", 4))
sketch8.addConstraint(Sketcher.Constraint("Horizontal", 5))
sketch8.addConstraint(Sketcher.Constraint("Vertical", 6))
sketch8.addConstraint(Sketcher.Constraint("Horizontal", 7))
sketch8.addConstraint(Sketcher.Constraint("Symmetric", 1, 2, 4, 2, -2))
sketch8.addConstraint(Sketcher.Constraint("Symmetric", 3, 2, 6, 2, -2))
sketch8.addConstraint(Sketcher.Constraint("DistanceY", 0, 1, 0, 2, Q("2 mm")))
sketch8.addConstraint(Sketcher.Constraint("DistanceX", 1, 1, 1, 2, Q("3.5 mm")))
sketch8.addConstraint(Sketcher.Constraint("DistanceX", 0, 2, 4, 2, Q("16 mm")))
sketch8.addConstraint(Sketcher.Constraint("DistanceY", 0, 2, -1, 1, Q("28.5 mm")))
pocket3 = body.newObject("PartDesign::Pocket", "Pocket002")
pocket3.Profile = sketch8
pocket3.Length = 2
pocket3.Reversed = True

# Sketch on XZ plane
sketch9 = body.newObject("Sketcher::SketchObject", "Sketch008")
sketch9.AttachmentSupport = (doc.getObject("XZ_Plane"), [""])
sketch9.MapMode = "FlatFace"
sketch9.AttachmentOffset = App.Placement(App.Vector(0, 0, 30.5), App.Rotation())
sketch9.addGeometry(Part.LineSegment(App.Vector(-8.5, 8.5, 0), App.Vector(-10.2, 8.5, 0)), False)
sketch9.addGeometry(Part.LineSegment(App.Vector(-10.2, 8.5, 0), App.Vector(-10.2, 7.5, 0)), False)
sketch9.addGeometry(Part.LineSegment(App.Vector(-10.2, 7.5, 0), App.Vector(-8.8, 7.5, 0)), False)
sketch9.addGeometry(Part.LineSegment(App.Vector(-8.8, 7.5, 0), App.Vector(-8.8, 6, 0)), False)
sketch9.addGeometry(Part.LineSegment(App.Vector(-8.8, 6, 0), App.Vector(-7.5, 6, 0)), False)
sketch9.addGeometry(Part.LineSegment(App.Vector(-7.5, 6, 0), App.Vector(-7.5, 7.5, 0)), False)
sketch9.addGeometry(Part.LineSegment(App.Vector(-7.5, 7.5, 0), App.Vector(-6.2, 7.5, 0)), False)
sketch9.addGeometry(Part.LineSegment(App.Vector(-6.2, 7.5, 0), App.Vector(-6.2, 8.5, 0)), False)
sketch9.addGeometry(Part.LineSegment(App.Vector(-6.2, 8.5, 0), App.Vector(-7.5, 8.5, 0)), False)
sketch9.addGeometry(Part.LineSegment(App.Vector(-7.5, 8.5, 0), App.Vector(-7.5, 10, 0)), False)
sketch9.addGeometry(Part.LineSegment(App.Vector(-7.5, 10, 0), App.Vector(-8.5, 10, 0)), False)
sketch9.addGeometry(Part.LineSegment(App.Vector(-8.5, 10, 0), App.Vector(-8.5, 8.5, 0)), False)
sketch9.addGeometry(Part.LineSegment(App.Vector(5.8, 8.5, 0), App.Vector(5.8, 7.5, 0)), False)
sketch9.addGeometry(Part.LineSegment(App.Vector(5.8, 7.5, 0), App.Vector(9.8, 7.5, 0)), False)
sketch9.addGeometry(Part.LineSegment(App.Vector(9.8, 7.5, 0), App.Vector(9.8, 8.5, 0)), False)
sketch9.addGeometry(Part.LineSegment(App.Vector(9.8, 8.5, 0), App.Vector(5.8, 8.5, 0)), False)
sketch9.addConstraint(Sketcher.Constraint("Coincident", 0, 2, 1, 1))
sketch9.addConstraint(Sketcher.Constraint("Coincident", 1, 2, 2, 1))
sketch9.addConstraint(Sketcher.Constraint("Coincident", 2, 2, 3, 1))
sketch9.addConstraint(Sketcher.Constraint("Coincident", 3, 2, 4, 1))
sketch9.addConstraint(Sketcher.Constraint("Coincident", 4, 2, 5, 1))
sketch9.addConstraint(Sketcher.Constraint("Coincident", 5, 2, 6, 1))
sketch9.addConstraint(Sketcher.Constraint("Coincident", 6, 2, 7, 1))
sketch9.addConstraint(Sketcher.Constraint("Coincident", 7, 2, 8, 1))
sketch9.addConstraint(Sketcher.Constraint("Coincident", 8, 2, 9, 1))
sketch9.addConstraint(Sketcher.Constraint("Coincident", 9, 2, 10, 1))
sketch9.addConstraint(Sketcher.Constraint("Coincident", 10, 2, 11, 1))
sketch9.addConstraint(Sketcher.Constraint("Coincident", 11, 2, 0, 1))
sketch9.addConstraint(Sketcher.Constraint("Coincident", 12, 2, 13, 1))
sketch9.addConstraint(Sketcher.Constraint("Coincident", 13, 2, 14, 1))
sketch9.addConstraint(Sketcher.Constraint("Coincident", 14, 2, 15, 1))
sketch9.addConstraint(Sketcher.Constraint("Coincident", 15, 2, 12, 1))
sketch9.addConstraint(Sketcher.Constraint("Horizontal", 0))
sketch9.addConstraint(Sketcher.Constraint("Vertical", 1))
sketch9.addConstraint(Sketcher.Constraint("Horizontal", 2))
sketch9.addConstraint(Sketcher.Constraint("Vertical", 3))
sketch9.addConstraint(Sketcher.Constraint("Horizontal", 4))
sketch9.addConstraint(Sketcher.Constraint("Vertical", 5))
sketch9.addConstraint(Sketcher.Constraint("Horizontal", 6))
sketch9.addConstraint(Sketcher.Constraint("Vertical", 7))
sketch9.addConstraint(Sketcher.Constraint("Horizontal", 8))
sketch9.addConstraint(Sketcher.Constraint("Vertical", 9))
sketch9.addConstraint(Sketcher.Constraint("Horizontal", 10))
sketch9.addConstraint(Sketcher.Constraint("Vertical", 11))
sketch9.addConstraint(Sketcher.Constraint("Vertical", 12))
sketch9.addConstraint(Sketcher.Constraint("Horizontal", 13))
sketch9.addConstraint(Sketcher.Constraint("Vertical", 14))
sketch9.addConstraint(Sketcher.Constraint("Horizontal", 15))
sketch9.addConstraint(Sketcher.Constraint("Horizontal", 2, 2, 5, 2))
sketch9.addConstraint(Sketcher.Constraint("Horizontal", 0, 2, 7, 2))
sketch9.addConstraint(Sketcher.Constraint("Horizontal", 6, 2, 12, 2))
sketch9.addConstraint(Sketcher.Constraint("Horizontal", 11, 2, 14, 2))
sketch9.addConstraint(Sketcher.Constraint("Vertical", 5, 2, 8, 2))
sketch9.addConstraint(Sketcher.Constraint("Equal", 4, 6))
sketch9.addConstraint(Sketcher.Constraint("Equal", 10, 1))
sketch9.addConstraint(Sketcher.Constraint("Equal", 2, 3))
sketch9.addConstraint(Sketcher.Constraint("Equal", 5, 9))
sketch9.addConstraint(Sketcher.Constraint("DistanceX", 10, 2, 10, 1, Q("1 mm")))
sketch9.addConstraint(Sketcher.Constraint("DistanceX", 13, 1, 13, 2, Q("4 mm")))
sketch9.addConstraint(Sketcher.Constraint("DistanceX", 2, 1, 2, 2, Q("1.5 mm")))
sketch9.addConstraint(Sketcher.Constraint("DistanceY", -1, 1, 3, 2, Q("6 mm")))
sketch9.addConstraint(Sketcher.Constraint("DistanceX", 1, 2, 6, 2, Q("4 mm")))
sketch9.addConstraint(Sketcher.Constraint("DistanceX", 6, 2, 12, 2, Q("12 mm")))
sketch9.addConstraint(Sketcher.Constraint("DistanceX", 4, 2, -1, 1, Q("7.5 mm")))
pocket4 = body.newObject("PartDesign::Pocket", "Pocket003")
pocket4.Profile = sketch9
pocket4.Length = 1

# Sketch on XY plane
sketch10 = body.newObject("Sketcher::SketchObject", "Sketch009")
sketch10.AttachmentSupport = (doc.getObject("XY_Plane"), [""])
sketch10.MapMode = "FlatFace"
sketch10.addGeometry(Part.LineSegment(App.Vector(-9.8, 23.5, 0), App.Vector(-9.8, 27.5, 0)), False)
sketch10.addGeometry(Part.LineSegment(App.Vector(-9.8, 27.5, 0), App.Vector(9.8, 27.5, 0)), False)
sketch10.addGeometry(Part.LineSegment(App.Vector(9.8, 27.5, 0), App.Vector(9.8, 23.5, 0)), False)
sketch10.addGeometry(Part.LineSegment(App.Vector(9.8, 23.5, 0), App.Vector(-9.8, 23.5, 0)), False)
sketch10.addConstraint(Sketcher.Constraint("Coincident", 0, 2, 1, 1))
sketch10.addConstraint(Sketcher.Constraint("Coincident", 1, 2, 2, 1))
sketch10.addConstraint(Sketcher.Constraint("Coincident", 2, 2, 3, 1))
sketch10.addConstraint(Sketcher.Constraint("Coincident", 3, 2, 0, 1))
sketch10.addConstraint(Sketcher.Constraint("Vertical", 0))
sketch10.addConstraint(Sketcher.Constraint("Horizontal", 1))
sketch10.addConstraint(Sketcher.Constraint("Vertical", 2))
sketch10.addConstraint(Sketcher.Constraint("Horizontal", 3))
sketch10.addConstraint(Sketcher.Constraint("DistanceY", 0, 1, 0, 2, Q("4 mm")))
sketch10.addConstraint(Sketcher.Constraint("DistanceX", 1, 1, 1, 2, Q("19.5 mm")))
sketch10.addConstraint(Sketcher.Constraint("DistanceY", -1, 1, 0, 2, Q("27.5 mm")))
sketch10.addConstraint(Sketcher.Constraint("DistanceX", 0, 2, -1, 1, Q("9.75 mm")))
pocket5 = body.newObject("PartDesign::Pocket", "Pocket004")
pocket5.Profile = sketch10
pocket5.Length = 1
pocket5.Reversed = True

doc.recompute()
